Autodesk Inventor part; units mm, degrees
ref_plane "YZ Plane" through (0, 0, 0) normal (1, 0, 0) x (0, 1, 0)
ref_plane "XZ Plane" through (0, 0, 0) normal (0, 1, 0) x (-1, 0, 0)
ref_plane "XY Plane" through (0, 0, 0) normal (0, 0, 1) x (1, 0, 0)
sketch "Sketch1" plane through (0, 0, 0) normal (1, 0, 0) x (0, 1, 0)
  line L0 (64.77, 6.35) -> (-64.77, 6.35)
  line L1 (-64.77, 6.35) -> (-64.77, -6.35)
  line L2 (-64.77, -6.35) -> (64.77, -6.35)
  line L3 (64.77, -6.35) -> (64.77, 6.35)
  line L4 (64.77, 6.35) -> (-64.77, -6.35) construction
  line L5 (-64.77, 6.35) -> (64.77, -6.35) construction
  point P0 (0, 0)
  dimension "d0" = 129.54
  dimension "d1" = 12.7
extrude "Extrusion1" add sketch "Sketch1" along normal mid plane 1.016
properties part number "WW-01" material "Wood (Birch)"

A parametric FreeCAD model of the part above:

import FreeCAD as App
import Part
import Sketcher

V = App.Vector
Q = App.Units.Quantity

doc = App.newDocument("Part")
body = doc.addObject("PartDesign::Body", "Body")

sketch1 = body.newObject("Sketcher::SketchObject", "Sketch")
sketch1.AttachmentSupport = (doc.getObject("YZ_Plane"), [""])
sketch1.MapMode = "FlatFace"
sketch1.addGeometry([
    Part.LineSegment(V(64.77, -6.35, 0), V(64.77, 6.35, 0)),
    Part.LineSegment(V(64.77, 6.35, 0), V(-64.77, 6.35, 0)),
    Part.LineSegment(V(-64.77, 6.35, 0), V(-64.77, -6.35, 0)),
    Part.LineSegment(V(-64.77, -6.35, 0), V(64.77, -6.35, 0)),
], False)
sketch1.addConstraint([
    Sketcher.Constraint("Coincident", 0, 2, 1, 1),
    Sketcher.Constraint("Coincident", 1, 2, 2, 1),
    Sketcher.Constraint("Coincident", 2, 2, 3, 1),
    Sketcher.Constraint("Coincident", 3, 2, 0, 1),
    Sketcher.Constraint("Vertical", 0),
    Sketcher.Constraint("Horizontal", 1),
    Sketcher.Constraint("Vertical", 2),
    Sketcher.Constraint("Horizontal", 3),
    Sketcher.Constraint("Symmetric", 0, 2, 2, 2, -1, 1),
    Sketcher.Constraint("DistanceX", 1, 2, 1, 1, Q("5.1 in")),
    Sketcher.Constraint("DistanceY", 0, 1, 0, 2, Q("0.5 in")),
])
pad1 = body.newObject("PartDesign::Pad", "Pad")
pad1.Profile = sketch1
pad1.Length = Q("0.04 in")
pad1.Midplane = True

doc.recompute()
